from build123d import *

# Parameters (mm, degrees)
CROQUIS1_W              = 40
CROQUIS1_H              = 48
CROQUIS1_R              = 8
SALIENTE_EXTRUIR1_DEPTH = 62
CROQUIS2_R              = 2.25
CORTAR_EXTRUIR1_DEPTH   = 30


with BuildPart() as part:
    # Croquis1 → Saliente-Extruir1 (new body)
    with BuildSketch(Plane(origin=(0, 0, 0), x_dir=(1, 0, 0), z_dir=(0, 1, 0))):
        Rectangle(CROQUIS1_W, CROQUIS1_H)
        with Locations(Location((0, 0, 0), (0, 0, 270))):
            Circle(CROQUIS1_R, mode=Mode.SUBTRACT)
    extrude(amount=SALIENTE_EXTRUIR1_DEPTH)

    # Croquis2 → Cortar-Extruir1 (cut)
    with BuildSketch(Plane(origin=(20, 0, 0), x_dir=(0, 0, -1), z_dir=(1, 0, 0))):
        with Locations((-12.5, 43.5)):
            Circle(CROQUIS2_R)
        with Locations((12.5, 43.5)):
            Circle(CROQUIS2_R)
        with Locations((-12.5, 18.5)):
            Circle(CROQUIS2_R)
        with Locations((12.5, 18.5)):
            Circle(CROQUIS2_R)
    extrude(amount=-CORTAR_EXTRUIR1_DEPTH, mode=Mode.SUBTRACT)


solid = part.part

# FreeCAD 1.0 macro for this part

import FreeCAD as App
import Part
import Sketcher

V = App.Vector

doc = App.newDocument("Part")
params = doc.addObject("Spreadsheet::Sheet", "Params")
for row, (alias, value) in enumerate([
    ("sketch1_diameter", "16 mm"),
    ("sketch1_width", "40 mm"),
    ("sketch1_height", "48 mm"),
    ("pad1_length", "62 mm"),
    ("sketch2_diameter", "4.5 mm"),
    ("pocket1_length", "30 mm"),
], start=1):
    params.set(f"A{row}", alias)
    params.set(f"B{row}", "=" + value)
    params.setAlias(f"B{row}", alias)

body = doc.addObject("PartDesign::Body", "Body")

sketch1 = body.newObject("Sketcher::SketchObject", "Sketch")
sketch1.AttachmentSupport = (doc.getObject("XZ_Plane"), [""])
sketch1.MapMode = "FlatFace"
sketch1.addGeometry([
    Part.LineSegment(V(-20, -24, 0), V(-20, 24, 0)),
    Part.LineSegment(V(-20, 24, 0), V(20, 24, 0)),
    Part.LineSegment(V(20, 24, 0), V(20, -24, 0)),
    Part.LineSegment(V(20, -24, 0), V(-20, -24, 0)),
    Part.Circle(V(0, 0, 0), V(0, 0, 1), 8),
], False)
sketch1.addConstraint([
    Sketcher.Constraint("Coincident", 0, 2, 1, 1),
    Sketcher.Constraint("Coincident", 1, 2, 2, 1),
    Sketcher.Constraint("Coincident", 2, 2, 3, 1),
    Sketcher.Constraint("Coincident", 3, 2, 0, 1),
    Sketcher.Constraint("Vertical", 0),
    Sketcher.Constraint("Horizontal", 1),
    Sketcher.Constraint("Vertical", 2),
    Sketcher.Constraint("Horizontal", 3),
    Sketcher.Constraint("Coincident", 4, 3, -1, 1),
    Sketcher.Constraint("Symmetric", 0, 2, 2, 2, -1, 1),
    Sketcher.Constraint("Diameter", 4, 16.0),
    Sketcher.Constraint("DistanceX", 1, 1, 1, 2, 40.0),
    Sketcher.Constraint("DistanceY", 0, 1, 0, 2, 48.0),
])
sketch1.setExpression("Constraints[10]", "Params.sketch1_diameter")
sketch1.setExpression("Constraints[11]", "Params.sketch1_width")
sketch1.setExpression("Constraints[12]", "Params.sketch1_height")
pad1 = body.newObject("PartDesign::Pad", "Pad")
pad1.Profile = sketch1
pad1.setExpression("Length", "Params.pad1_length")
pad1.Reversed = True

sketch2 = body.newObject("Sketcher::SketchObject", "Sketch001")
sketch2.AttachmentSupport = (doc.getObject("YZ_Plane"), [""])
sketch2.MapMode = "FlatFace"
sketch2.AttachmentOffset = App.Placement(V(0, 0, 20), App.Rotation())
sketch2.addGeometry([
    Part.Circle(V(43.5, 12.5, 0), V(0, 0, 1), 2.2),
    Part.Circle(V(43.5, -12.5, 0), V(0, 0, 1), 2.2),
    Part.Circle(V(18.5, 12.5, 0), V(0, 0, 1), 2.2),
    Part.Circle(V(18.5, -12.5, 0), V(0, 0, 1), 2.2),
], False)
sketch2.addConstraint([
    Sketcher.Constraint("Equal", 0, 1),
    Sketcher.Constraint("Equal", 1, 2),
    Sketcher.Constraint("Equal", 2, 3),
    Sketcher.Constraint("Symmetric", 0, 3, 1, 3, -1),
    Sketcher.Constraint("Symmetric", 2, 3, 3, 3, -1),
    Sketcher.Constraint("Horizontal", 0, 3, 2, 3),
    Sketcher.Constraint("Diameter", 0, 4.5),
    Sketcher.Constraint("DistanceY", 1, 3, 0, 3, 25.0),
    Sketcher.Constraint("DistanceX", 2, 3, 0, 3, 25.0),
    Sketcher.Constraint("DistanceX", -1, 1, 0, 3, 43.5),
])
sketch2.setExpression("Constraints[6]", "Params.sketch2_diameter")
pocket1 = body.newObject("PartDesign::Pocket", "Pocket")
pocket1.Profile = sketch2
pocket1.setExpression("Length", "Params.pocket1_length")

doc.recompute()
